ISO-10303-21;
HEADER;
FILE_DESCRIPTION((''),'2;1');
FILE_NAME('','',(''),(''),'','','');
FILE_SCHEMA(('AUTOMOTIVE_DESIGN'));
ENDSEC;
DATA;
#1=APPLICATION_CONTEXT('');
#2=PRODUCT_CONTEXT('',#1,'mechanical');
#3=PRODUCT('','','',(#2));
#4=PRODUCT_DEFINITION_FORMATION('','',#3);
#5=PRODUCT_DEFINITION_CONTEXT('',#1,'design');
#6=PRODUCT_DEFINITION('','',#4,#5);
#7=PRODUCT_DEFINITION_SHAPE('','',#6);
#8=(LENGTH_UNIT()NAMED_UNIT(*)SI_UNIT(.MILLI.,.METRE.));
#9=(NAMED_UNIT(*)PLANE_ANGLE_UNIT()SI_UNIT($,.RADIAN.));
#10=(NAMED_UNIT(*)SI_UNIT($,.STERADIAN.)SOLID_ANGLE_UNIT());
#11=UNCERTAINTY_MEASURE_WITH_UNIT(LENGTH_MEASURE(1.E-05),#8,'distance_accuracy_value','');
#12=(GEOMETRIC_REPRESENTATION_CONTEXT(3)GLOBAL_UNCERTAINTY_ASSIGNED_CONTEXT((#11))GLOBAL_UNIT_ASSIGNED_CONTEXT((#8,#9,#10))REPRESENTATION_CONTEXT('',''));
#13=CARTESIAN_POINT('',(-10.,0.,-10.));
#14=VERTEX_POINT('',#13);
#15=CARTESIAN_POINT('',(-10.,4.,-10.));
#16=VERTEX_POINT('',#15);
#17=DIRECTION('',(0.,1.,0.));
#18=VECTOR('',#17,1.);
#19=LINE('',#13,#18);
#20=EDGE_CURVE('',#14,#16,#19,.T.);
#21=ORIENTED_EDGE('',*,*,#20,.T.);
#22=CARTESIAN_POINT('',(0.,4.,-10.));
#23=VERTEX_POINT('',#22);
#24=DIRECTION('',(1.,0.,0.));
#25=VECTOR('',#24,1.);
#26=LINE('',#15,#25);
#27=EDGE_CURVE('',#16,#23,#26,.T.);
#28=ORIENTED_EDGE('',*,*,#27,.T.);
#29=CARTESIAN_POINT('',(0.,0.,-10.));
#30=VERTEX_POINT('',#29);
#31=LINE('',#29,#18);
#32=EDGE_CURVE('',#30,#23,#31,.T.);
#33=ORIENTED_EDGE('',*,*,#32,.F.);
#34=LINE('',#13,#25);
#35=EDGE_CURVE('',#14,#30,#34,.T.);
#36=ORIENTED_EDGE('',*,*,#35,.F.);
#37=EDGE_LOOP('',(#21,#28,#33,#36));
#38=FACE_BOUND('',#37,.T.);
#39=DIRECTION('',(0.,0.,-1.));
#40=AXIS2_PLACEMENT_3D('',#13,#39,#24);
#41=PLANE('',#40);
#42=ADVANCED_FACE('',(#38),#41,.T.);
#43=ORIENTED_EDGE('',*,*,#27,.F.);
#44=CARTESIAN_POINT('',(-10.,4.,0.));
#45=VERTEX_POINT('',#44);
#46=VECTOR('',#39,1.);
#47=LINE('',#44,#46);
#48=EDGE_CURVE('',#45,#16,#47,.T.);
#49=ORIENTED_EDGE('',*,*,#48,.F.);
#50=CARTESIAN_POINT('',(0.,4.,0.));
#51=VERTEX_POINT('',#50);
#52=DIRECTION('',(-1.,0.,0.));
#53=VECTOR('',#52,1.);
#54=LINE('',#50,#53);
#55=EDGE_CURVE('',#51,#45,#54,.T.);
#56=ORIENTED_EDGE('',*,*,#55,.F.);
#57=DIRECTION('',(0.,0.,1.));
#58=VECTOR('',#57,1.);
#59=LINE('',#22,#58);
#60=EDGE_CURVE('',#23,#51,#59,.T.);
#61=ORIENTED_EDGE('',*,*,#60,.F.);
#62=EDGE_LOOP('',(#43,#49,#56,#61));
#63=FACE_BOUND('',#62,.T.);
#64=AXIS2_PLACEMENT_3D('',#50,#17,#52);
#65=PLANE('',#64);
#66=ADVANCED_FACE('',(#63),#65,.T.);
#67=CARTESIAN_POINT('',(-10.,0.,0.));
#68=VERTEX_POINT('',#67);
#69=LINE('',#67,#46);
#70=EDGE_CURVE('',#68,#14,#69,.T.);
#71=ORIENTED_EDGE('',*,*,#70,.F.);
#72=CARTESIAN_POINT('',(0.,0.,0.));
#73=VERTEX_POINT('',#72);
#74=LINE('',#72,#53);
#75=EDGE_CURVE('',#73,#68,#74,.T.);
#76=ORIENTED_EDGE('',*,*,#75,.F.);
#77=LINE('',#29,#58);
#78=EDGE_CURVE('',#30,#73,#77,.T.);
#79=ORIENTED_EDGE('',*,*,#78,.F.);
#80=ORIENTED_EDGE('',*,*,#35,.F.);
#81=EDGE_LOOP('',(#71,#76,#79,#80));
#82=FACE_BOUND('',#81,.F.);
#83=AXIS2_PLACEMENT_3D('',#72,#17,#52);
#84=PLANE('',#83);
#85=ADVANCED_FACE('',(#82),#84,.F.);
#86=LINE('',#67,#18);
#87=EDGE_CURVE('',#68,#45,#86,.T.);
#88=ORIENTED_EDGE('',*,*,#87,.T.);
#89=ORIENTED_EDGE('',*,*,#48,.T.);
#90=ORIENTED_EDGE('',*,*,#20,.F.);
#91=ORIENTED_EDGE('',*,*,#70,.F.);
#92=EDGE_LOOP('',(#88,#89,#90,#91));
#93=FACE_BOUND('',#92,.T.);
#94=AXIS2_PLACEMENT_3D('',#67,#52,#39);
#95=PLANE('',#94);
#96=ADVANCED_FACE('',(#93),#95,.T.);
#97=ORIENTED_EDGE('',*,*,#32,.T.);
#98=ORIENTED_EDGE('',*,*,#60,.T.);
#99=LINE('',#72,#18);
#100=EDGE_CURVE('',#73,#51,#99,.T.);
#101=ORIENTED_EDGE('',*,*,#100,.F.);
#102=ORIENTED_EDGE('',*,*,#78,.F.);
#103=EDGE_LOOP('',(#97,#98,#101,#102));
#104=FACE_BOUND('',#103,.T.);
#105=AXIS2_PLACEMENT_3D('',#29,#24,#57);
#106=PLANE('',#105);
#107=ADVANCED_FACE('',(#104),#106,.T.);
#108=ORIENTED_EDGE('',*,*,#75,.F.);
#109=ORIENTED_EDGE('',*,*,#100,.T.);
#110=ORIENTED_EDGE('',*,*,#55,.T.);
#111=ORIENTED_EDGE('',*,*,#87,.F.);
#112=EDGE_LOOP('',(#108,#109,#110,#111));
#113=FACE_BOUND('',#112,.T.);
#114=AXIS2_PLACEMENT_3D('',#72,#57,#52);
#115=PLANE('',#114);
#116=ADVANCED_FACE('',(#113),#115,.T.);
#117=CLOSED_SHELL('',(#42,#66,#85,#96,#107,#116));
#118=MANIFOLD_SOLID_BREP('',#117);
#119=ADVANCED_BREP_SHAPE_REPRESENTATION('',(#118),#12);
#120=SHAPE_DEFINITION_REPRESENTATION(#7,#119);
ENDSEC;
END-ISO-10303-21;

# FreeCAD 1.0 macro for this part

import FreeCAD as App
import Part
import Sketcher
Q = App.Units.Quantity

doc = App.newDocument("Part")
body = doc.addObject("PartDesign::Body", "Body")

# Sketch on XZ plane
sketch1 = body.newObject("Sketcher::SketchObject", "Sketch")
sketch1.AttachmentSupport = (doc.getObject("XZ_Plane"), [""])
sketch1.MapMode = "FlatFace"
sketch1.addGeometry([
    Part.LineSegment(App.Vector(-10, 0, 0), App.Vector(0, 0, 0)),
    Part.LineSegment(App.Vector(0, 0, 0), App.Vector(0, -10, 0)),
    Part.LineSegment(App.Vector(0, -10, 0), App.Vector(-10, -10, 0)),
    Part.LineSegment(App.Vector(-10, -10, 0), App.Vector(-10, 0, 0)),
], False)
sketch1.addConstraint([
    Sketcher.Constraint("Coincident", 0, 2, 1, 1),
    Sketcher.Constraint("Coincident", 1, 2, 2, 1),
    Sketcher.Constraint("Coincident", 2, 2, 3, 1),
    Sketcher.Constraint("Coincident", 3, 2, 0, 1),
    Sketcher.Constraint("Horizontal", 0),
    Sketcher.Constraint("Vertical", 1),
    Sketcher.Constraint("Horizontal", 2),
    Sketcher.Constraint("Vertical", 3),
    Sketcher.Constraint("Coincident", 0, 2, -1, 1),
    Sketcher.Constraint("Equal", 2, 1),
    Sketcher.Constraint("DistanceX", 0, 1, 0, 2, Q("10 mm")),
])
pad1 = body.newObject("PartDesign::Pad", "Pad")
pad1.Profile = sketch1
pad1.Length = 4
pad1.Reversed = True

doc.recompute()
